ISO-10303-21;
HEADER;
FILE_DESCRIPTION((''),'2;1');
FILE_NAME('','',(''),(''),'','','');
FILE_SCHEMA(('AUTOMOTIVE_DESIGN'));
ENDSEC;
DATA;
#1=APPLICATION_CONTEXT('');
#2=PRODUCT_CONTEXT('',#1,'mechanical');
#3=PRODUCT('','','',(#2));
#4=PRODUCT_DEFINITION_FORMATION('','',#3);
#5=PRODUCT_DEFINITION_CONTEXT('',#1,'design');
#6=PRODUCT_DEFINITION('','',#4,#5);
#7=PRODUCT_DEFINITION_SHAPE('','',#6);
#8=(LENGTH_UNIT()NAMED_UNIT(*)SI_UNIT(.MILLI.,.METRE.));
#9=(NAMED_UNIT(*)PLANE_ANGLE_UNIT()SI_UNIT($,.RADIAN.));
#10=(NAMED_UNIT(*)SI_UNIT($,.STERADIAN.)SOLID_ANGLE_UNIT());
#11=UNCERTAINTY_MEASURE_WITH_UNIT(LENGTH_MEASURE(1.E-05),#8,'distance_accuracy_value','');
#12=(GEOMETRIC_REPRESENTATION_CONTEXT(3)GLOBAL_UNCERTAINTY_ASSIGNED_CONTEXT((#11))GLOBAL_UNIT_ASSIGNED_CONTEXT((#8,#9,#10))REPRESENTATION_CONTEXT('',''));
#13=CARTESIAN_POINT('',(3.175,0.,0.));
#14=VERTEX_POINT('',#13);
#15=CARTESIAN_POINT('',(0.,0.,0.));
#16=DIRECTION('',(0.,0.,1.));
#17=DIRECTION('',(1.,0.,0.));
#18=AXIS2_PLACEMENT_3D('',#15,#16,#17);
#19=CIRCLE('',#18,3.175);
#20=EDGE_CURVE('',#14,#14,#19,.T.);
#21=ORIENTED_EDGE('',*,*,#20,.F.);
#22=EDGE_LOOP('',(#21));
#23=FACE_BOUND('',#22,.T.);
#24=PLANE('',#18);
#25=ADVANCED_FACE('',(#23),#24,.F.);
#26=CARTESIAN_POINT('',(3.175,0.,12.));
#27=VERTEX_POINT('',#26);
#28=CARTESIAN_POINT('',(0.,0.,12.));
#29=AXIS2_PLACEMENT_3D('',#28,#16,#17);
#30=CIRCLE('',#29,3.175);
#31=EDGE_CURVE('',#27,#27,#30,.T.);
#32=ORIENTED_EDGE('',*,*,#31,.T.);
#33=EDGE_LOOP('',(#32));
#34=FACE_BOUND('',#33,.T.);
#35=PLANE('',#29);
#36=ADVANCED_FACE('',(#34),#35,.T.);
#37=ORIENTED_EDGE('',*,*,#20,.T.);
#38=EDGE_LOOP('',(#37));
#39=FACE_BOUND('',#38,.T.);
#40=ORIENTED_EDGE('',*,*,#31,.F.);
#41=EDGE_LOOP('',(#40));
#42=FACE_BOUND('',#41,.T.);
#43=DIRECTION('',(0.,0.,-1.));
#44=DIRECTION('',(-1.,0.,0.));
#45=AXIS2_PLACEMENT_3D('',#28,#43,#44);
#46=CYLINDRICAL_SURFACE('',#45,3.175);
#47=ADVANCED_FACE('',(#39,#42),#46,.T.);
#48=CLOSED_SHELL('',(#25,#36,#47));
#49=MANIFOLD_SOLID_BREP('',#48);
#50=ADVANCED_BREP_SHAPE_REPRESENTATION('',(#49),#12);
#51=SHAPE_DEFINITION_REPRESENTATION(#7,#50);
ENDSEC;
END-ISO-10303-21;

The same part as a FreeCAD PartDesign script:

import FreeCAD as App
import Part
import Sketcher

V = App.Vector
Q = App.Units.Quantity

doc = App.newDocument("Part")
params = doc.addObject("Spreadsheet::Sheet", "Params")
for row, (alias, value) in enumerate([
    ("sketch1_diameter", "6.35 mm"),
    ("pad1_length", "12 mm"),
], start=1):
    params.set(f"A{row}", alias)
    params.set(f"B{row}", "=" + value)
    params.setAlias(f"B{row}", alias)

body = doc.addObject("PartDesign::Body", "Body")

sketch1 = doc.addObject("Sketcher::SketchObject", "Sketch")
body.addObject(sketch1)
sketch1.AttachmentSupport = (doc.XY_Plane, [""])
sketch1.MapMode = "FlatFace"
sketch1.addGeometry(Part.Circle(V(0, 0, 0), V(0, 0, 1), 3.2), False)
sketch1.addConstraint([
    Sketcher.Constraint("Coincident", 0, 3, -1, 1),
    Sketcher.Constraint("Diameter", 0, Q("6.35 mm")),
])
sketch1.setExpression("Constraints[1]", "Params.sketch1_diameter")
pad1 = doc.addObject("PartDesign::Pad", "Pad")
body.addObject(pad1)
pad1.Profile = sketch1
pad1.setExpression("Length", "Params.pad1_length")

doc.recompute()
